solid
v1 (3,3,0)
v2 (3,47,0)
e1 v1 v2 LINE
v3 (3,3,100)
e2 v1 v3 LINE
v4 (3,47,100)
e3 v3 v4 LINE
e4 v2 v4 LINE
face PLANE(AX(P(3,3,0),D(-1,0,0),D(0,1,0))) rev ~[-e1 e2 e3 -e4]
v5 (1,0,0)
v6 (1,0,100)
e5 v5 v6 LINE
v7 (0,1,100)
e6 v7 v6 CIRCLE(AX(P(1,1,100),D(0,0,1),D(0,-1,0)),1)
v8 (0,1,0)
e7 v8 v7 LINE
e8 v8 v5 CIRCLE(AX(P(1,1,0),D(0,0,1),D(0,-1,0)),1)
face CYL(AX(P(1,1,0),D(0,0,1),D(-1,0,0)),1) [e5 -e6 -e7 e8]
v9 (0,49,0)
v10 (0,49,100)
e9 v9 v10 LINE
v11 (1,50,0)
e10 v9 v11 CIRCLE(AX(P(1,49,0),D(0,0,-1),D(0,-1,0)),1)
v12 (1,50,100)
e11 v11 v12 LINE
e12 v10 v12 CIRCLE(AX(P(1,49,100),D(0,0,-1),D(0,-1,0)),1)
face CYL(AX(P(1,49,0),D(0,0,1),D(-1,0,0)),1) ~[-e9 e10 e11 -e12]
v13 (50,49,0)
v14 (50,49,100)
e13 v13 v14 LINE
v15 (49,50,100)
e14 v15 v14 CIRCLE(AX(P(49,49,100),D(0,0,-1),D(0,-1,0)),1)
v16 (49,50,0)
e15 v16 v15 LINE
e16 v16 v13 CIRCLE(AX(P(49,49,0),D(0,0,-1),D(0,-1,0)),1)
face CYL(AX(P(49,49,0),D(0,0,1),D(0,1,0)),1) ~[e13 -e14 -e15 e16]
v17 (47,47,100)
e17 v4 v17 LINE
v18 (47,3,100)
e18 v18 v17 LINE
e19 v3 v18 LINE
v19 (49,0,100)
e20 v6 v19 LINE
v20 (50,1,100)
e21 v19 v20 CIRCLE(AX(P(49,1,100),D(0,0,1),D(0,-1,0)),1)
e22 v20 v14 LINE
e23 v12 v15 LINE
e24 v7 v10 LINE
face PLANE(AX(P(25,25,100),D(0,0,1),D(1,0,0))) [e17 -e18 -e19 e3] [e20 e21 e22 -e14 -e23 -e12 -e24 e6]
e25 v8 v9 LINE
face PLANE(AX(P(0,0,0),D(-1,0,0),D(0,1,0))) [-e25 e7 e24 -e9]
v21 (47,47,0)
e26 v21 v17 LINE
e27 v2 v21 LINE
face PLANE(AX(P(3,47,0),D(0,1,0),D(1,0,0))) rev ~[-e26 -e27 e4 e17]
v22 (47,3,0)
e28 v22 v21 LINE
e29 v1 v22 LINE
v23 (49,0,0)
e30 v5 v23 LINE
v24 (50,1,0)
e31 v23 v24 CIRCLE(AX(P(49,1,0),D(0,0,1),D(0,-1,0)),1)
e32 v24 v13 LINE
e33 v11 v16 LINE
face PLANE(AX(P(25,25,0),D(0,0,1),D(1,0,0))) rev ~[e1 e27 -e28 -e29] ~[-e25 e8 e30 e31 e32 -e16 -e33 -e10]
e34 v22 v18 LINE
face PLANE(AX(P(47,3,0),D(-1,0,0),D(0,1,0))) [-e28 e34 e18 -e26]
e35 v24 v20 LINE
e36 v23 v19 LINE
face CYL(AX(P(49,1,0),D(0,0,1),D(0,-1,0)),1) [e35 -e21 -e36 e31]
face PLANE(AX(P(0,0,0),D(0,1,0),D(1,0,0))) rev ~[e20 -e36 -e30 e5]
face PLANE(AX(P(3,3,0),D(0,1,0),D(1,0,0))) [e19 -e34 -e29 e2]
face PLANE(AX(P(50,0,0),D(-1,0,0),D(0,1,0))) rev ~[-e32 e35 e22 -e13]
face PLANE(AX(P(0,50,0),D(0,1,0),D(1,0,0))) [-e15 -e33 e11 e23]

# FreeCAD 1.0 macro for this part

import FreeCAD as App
import Part
import Sketcher
Q = App.Units.Quantity


def edges_at(feature, points):
    """Names of the edges that pass closest to the given points."""
    edges = feature.Shape.Edges
    near = lambda p: min(range(len(edges)), key=lambda i: edges[i].distToShape(Part.Vertex(*p))[0])
    return sorted({f"Edge{near(p) + 1}" for p in points})


def add_polygon(sketch, points):
    """Adds a closed chain of lines whose ends are joined by coincident constraints."""
    first, n = sketch.GeometryCount, len(points)
    for a, b in zip(points, points[1:] + points[:1]):
        sketch.addGeometry(Part.LineSegment(App.Vector(*a, 0), App.Vector(*b, 0)), False)
    for i in range(n):
        sketch.addConstraint(Sketcher.Constraint("Coincident", first + i, 2, first + (i + 1) % n, 1))

doc = App.newDocument("Part")
body = doc.addObject("PartDesign::Body", "Body")

# Sketch on XY plane
sketch1 = body.newObject("Sketcher::SketchObject", "Sketch")
sketch1.AttachmentSupport = (doc.getObject("XY_Plane"), [""])
sketch1.MapMode = "FlatFace"
add_polygon(sketch1, [(0, 50), (0, 0), (50, 0), (50, 50)])  # lines 0-3
add_polygon(sketch1, [(47, 3), (3, 3), (3, 47), (47, 47)])  # lines 4-7
sketch1.addConstraint([
    Sketcher.Constraint("Vertical", 0),
    Sketcher.Constraint("Horizontal", 1),
    Sketcher.Constraint("Vertical", 2),
    Sketcher.Constraint("Horizontal", 3),
    Sketcher.Constraint("Horizontal", 4),
    Sketcher.Constraint("Vertical", 5),
    Sketcher.Constraint("Horizontal", 6),
    Sketcher.Constraint("Vertical", 7),
    Sketcher.Constraint("Coincident", 0, 2, -1, 1),
    Sketcher.Constraint("Equal", 3, 0),
    Sketcher.Constraint("Equal", 6, 5),
    Sketcher.Constraint("DistanceX", 1, 1, 1, 2, Q("50 mm")),
    Sketcher.Constraint("DistanceX", 4, 2, 4, 1, Q("44 mm")),
    Sketcher.Constraint("DistanceX", -1, 1, 4, 2, Q("3 mm")),
    Sketcher.Constraint("DistanceY", -1, 1, 4, 2, Q("3 mm")),
])
pad1 = body.newObject("PartDesign::Pad", "Pad")
pad1.Profile = sketch1
pad1.Length = 100
doc.recompute()

fillet = body.newObject("PartDesign::Fillet", "Fillet")
fillet.Base = (pad1, edges_at(pad1, [
    (0, 50, 50),
    (50, 50, 50),
    (50, 0, 50),
    (0, 0, 50),
]))
fillet.Radius = 1

doc.recompute()
